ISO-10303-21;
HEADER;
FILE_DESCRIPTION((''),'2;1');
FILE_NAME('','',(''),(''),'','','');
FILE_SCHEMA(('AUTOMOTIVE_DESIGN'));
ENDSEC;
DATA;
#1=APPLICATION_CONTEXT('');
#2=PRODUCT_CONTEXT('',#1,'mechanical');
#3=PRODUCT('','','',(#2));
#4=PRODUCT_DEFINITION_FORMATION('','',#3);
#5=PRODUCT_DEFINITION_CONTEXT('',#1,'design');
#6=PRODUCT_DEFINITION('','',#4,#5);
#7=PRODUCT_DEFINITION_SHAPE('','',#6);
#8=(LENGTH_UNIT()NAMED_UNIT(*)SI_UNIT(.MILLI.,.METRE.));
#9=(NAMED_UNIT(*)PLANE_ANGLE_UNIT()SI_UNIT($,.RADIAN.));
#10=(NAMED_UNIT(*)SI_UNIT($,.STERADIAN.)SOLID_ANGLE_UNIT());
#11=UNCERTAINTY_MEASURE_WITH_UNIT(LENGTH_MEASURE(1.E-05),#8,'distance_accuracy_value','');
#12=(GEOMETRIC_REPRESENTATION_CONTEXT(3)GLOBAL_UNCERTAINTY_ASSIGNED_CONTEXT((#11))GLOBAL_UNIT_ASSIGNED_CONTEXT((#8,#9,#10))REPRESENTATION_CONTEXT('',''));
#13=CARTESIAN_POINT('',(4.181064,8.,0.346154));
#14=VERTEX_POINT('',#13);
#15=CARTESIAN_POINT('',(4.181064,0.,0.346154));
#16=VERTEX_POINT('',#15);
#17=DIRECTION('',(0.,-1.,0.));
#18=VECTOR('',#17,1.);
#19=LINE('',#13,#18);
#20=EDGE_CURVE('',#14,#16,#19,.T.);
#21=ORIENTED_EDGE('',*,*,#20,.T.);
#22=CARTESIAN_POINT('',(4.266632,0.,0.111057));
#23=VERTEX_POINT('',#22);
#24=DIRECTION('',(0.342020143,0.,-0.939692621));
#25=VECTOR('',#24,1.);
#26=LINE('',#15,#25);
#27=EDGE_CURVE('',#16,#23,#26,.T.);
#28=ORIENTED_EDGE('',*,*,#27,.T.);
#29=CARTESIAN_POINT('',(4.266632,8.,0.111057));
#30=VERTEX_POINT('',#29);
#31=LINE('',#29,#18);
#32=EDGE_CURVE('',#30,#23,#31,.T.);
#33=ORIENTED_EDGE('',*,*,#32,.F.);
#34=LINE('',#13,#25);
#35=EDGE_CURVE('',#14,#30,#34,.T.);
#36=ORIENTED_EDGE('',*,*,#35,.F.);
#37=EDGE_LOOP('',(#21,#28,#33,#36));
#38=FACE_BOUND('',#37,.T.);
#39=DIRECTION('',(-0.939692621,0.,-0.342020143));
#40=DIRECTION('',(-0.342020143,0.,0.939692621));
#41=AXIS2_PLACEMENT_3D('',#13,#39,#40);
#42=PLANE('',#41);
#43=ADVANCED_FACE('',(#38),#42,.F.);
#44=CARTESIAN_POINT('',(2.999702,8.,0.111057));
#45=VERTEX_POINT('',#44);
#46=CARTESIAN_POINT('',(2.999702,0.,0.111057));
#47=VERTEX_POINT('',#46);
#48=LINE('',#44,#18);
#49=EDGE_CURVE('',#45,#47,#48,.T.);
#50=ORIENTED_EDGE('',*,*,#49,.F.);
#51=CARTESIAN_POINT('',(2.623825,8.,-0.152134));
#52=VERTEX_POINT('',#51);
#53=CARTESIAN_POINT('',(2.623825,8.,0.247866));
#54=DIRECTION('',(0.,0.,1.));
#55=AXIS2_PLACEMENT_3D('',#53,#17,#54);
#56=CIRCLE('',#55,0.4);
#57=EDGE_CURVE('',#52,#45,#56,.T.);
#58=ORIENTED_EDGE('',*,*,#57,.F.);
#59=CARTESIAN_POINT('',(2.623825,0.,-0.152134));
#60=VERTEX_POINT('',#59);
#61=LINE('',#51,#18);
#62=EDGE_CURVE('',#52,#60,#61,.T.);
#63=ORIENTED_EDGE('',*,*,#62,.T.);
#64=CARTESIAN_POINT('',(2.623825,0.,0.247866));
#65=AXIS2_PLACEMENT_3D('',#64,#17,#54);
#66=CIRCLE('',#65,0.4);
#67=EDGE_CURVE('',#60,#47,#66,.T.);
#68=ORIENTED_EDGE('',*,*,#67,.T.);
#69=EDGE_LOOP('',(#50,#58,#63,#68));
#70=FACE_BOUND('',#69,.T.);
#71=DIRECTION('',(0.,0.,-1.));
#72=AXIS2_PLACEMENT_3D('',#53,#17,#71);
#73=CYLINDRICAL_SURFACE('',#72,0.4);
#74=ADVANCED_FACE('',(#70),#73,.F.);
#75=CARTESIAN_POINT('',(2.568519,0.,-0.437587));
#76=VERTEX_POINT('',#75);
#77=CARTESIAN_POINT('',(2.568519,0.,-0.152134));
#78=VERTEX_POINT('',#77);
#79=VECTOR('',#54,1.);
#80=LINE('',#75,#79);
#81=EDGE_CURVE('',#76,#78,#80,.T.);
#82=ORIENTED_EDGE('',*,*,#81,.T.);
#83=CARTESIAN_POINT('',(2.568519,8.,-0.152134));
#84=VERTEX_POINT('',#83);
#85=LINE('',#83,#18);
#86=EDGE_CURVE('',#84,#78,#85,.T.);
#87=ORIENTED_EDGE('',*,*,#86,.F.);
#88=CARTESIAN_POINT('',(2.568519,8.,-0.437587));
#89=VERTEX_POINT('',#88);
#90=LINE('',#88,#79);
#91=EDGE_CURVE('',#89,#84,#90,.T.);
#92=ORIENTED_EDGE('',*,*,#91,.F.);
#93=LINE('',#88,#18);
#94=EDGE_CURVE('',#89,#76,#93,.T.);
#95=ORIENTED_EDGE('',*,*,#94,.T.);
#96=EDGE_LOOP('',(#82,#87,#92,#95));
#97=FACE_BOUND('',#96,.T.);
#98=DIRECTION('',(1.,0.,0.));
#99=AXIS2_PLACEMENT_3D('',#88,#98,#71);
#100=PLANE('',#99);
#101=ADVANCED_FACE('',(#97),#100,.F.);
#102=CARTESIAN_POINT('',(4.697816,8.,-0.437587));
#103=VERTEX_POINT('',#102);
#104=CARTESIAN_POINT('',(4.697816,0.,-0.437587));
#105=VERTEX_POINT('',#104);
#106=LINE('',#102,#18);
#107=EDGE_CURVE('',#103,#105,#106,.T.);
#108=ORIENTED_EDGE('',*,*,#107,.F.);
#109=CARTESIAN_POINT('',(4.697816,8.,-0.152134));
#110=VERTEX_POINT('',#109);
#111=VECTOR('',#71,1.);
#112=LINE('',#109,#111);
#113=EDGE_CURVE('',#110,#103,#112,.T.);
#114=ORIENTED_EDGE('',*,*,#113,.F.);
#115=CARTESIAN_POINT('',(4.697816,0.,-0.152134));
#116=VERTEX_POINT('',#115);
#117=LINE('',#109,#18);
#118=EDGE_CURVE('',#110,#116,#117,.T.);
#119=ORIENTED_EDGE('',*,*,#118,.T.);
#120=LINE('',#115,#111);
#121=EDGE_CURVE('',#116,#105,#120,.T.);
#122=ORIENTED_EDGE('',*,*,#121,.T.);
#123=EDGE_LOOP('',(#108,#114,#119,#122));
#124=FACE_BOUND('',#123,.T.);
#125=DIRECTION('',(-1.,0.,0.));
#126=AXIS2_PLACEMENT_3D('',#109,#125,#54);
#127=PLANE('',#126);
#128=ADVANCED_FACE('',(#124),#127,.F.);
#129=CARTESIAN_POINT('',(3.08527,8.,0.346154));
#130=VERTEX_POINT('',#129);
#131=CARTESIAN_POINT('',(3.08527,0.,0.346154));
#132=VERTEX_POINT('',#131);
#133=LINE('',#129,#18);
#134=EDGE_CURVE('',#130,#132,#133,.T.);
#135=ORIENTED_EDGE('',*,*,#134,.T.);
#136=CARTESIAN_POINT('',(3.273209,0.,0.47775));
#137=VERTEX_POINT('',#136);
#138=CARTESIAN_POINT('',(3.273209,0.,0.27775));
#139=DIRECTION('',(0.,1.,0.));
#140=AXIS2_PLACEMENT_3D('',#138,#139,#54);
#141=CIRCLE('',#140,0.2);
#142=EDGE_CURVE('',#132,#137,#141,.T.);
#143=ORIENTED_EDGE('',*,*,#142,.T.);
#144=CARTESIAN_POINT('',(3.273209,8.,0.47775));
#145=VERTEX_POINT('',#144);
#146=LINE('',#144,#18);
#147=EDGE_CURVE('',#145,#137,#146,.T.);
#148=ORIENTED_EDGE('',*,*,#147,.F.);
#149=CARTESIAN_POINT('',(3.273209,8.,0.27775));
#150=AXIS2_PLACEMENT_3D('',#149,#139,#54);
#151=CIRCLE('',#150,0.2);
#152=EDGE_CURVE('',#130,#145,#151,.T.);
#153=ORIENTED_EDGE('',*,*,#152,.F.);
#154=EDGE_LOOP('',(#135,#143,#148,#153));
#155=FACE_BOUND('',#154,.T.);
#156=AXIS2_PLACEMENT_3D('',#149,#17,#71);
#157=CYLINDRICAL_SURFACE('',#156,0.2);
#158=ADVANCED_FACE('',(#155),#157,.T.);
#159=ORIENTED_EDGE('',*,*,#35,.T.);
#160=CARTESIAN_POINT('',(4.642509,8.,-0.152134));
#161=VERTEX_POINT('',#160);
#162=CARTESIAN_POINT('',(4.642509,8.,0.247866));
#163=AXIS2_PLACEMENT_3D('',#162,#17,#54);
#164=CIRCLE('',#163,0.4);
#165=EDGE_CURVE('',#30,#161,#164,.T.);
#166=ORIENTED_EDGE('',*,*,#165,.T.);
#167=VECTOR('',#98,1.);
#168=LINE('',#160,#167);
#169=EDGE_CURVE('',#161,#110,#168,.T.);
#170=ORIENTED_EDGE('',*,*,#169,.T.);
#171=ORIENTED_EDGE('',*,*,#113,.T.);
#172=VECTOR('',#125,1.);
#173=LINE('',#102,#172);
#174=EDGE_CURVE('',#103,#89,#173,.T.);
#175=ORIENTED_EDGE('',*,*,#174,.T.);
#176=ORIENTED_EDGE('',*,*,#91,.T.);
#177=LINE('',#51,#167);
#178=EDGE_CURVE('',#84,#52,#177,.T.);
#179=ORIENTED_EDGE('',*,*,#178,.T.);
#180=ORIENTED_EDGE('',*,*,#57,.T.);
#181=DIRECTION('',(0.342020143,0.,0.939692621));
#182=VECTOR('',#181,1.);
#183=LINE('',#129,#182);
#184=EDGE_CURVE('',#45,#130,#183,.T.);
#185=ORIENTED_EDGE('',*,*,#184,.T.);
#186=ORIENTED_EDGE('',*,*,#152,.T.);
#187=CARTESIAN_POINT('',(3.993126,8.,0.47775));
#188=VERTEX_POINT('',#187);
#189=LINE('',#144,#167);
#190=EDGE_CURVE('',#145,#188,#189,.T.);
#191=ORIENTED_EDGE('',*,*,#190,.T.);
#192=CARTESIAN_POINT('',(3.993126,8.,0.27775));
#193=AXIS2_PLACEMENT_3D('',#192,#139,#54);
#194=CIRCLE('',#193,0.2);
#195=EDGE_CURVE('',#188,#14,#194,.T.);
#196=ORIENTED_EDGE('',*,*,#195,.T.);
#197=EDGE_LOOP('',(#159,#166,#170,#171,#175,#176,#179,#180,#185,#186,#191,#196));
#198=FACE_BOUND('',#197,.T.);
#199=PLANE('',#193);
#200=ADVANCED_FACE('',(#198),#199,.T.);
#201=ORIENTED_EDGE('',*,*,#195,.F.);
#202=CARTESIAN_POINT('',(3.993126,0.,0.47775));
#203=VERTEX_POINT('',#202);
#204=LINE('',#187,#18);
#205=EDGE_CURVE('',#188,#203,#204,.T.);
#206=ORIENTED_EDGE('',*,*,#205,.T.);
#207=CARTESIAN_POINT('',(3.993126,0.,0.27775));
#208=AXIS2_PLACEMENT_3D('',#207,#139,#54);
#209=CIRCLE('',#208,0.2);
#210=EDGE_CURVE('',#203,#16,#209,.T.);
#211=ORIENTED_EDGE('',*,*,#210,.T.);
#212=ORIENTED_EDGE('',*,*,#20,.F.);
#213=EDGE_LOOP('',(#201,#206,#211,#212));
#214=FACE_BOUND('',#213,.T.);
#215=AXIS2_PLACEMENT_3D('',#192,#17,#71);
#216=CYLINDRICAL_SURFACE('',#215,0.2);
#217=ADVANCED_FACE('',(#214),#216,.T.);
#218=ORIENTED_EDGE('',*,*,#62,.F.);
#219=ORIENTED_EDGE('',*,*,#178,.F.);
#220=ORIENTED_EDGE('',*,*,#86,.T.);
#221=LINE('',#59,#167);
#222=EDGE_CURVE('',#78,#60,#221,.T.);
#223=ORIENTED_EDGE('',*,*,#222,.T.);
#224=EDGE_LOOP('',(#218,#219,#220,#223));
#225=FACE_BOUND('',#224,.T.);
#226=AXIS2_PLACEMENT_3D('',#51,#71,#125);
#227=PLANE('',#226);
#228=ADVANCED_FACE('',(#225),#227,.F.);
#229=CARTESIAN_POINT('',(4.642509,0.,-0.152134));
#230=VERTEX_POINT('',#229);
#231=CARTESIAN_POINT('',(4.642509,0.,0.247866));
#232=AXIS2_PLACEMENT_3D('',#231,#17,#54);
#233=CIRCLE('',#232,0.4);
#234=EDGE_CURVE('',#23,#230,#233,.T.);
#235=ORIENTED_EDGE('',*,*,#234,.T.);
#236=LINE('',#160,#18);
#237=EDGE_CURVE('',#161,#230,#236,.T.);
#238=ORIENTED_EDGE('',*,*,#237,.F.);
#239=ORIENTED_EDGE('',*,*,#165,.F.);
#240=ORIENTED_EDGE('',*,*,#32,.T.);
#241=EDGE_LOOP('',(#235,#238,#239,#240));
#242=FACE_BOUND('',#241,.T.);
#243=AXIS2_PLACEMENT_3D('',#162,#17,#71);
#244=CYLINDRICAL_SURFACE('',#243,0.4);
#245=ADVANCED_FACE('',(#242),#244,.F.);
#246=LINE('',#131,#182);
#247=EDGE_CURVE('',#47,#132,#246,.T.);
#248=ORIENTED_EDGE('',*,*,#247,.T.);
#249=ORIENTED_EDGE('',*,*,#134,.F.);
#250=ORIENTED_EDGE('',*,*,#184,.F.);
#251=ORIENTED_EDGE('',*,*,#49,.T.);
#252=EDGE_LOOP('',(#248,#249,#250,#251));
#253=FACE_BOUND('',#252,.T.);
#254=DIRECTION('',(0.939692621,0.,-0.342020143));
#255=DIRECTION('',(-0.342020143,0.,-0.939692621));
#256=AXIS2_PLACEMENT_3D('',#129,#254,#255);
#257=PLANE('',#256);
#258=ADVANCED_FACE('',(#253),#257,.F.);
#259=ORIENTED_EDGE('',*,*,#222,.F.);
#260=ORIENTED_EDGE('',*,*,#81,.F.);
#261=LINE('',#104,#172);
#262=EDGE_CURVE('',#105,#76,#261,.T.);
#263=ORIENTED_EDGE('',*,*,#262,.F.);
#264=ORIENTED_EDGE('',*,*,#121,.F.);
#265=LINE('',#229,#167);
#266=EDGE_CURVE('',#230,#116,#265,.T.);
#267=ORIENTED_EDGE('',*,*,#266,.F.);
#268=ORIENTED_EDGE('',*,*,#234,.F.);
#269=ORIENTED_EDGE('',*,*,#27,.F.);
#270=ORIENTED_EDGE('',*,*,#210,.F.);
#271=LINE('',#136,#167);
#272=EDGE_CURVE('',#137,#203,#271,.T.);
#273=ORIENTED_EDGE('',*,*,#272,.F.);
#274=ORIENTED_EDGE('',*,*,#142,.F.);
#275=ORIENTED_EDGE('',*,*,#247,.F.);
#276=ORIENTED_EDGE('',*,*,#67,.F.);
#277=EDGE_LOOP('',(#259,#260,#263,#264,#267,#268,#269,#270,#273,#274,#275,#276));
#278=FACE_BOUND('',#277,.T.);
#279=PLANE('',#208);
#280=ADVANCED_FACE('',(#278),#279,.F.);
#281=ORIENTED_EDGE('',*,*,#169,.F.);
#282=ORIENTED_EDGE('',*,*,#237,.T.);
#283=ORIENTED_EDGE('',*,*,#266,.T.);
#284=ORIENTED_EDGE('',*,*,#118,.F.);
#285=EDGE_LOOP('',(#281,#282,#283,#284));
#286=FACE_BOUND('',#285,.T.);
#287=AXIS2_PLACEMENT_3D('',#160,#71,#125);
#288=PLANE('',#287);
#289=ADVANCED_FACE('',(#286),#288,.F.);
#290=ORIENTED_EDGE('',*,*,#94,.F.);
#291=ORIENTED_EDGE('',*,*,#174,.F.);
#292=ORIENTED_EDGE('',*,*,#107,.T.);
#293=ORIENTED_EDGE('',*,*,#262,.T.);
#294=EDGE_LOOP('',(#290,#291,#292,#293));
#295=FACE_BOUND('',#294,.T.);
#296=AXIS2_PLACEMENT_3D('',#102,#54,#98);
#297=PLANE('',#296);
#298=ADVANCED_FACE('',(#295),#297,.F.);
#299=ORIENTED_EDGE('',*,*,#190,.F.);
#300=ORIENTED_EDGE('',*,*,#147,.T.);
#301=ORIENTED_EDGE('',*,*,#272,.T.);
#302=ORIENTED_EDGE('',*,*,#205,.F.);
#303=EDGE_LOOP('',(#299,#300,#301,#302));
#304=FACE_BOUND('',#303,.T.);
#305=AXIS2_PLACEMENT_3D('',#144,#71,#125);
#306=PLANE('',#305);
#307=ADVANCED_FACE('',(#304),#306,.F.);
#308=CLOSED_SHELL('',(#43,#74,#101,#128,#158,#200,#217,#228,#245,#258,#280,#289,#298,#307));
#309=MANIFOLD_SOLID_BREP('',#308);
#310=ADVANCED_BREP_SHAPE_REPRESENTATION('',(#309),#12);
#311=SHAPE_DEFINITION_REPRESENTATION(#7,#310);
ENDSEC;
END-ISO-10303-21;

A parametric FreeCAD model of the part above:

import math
import FreeCAD as App
import Part
import Sketcher
from FreeCAD import Vector
Q = App.Units.Quantity

doc = App.newDocument("Part")
body = doc.addObject("PartDesign::Body", "Body")

# Sketch on XZ plane
sketch1 = body.newObject("Sketcher::SketchObject", "Sketch")
sketch1.AttachmentSupport = (doc.getObject("XZ_Plane"), [""])
sketch1.MapMode = "FlatFace"
sketch1.addGeometry([
    Part.LineSegment(Vector(4.18, 0.35, 0), Vector(4.27, 0.11, 0)),  # 0
    Part.ArcOfCircle(Part.Circle(Vector(4.64, 0.25, 0), Vector(0, 0, 1), 0.4), math.radians(-160), math.radians(-90)),  # 1
    Part.LineSegment(Vector(4.64, -0.15, 0), Vector(4.7, -0.15, 0)),  # 2
    Part.LineSegment(Vector(4.7, -0.15, 0), Vector(4.7, -0.44, 0)),  # 3
    Part.LineSegment(Vector(4.7, -0.44, 0), Vector(2.57, -0.44, 0)),  # 4
    Part.LineSegment(Vector(2.57, -0.44, 0), Vector(2.57, -0.15, 0)),  # 5
    Part.LineSegment(Vector(2.57, -0.15, 0), Vector(2.62, -0.15, 0)),  # 6
    Part.ArcOfCircle(Part.Circle(Vector(2.62, 0.25, 0), Vector(0, 0, 1), 0.4), math.radians(-90), math.radians(-20)),  # 7
    Part.LineSegment(Vector(3, 0.11, 0), Vector(3.09, 0.35, 0)),  # 8
    Part.ArcOfCircle(Part.Circle(Vector(3.27, 0.28, 0), Vector(0, 0, 1), 0.2), math.radians(90), math.radians(160)),  # 9
    Part.LineSegment(Vector(3.27, 0.48, 0), Vector(3.99, 0.48, 0)),  # 10
    Part.ArcOfCircle(Part.Circle(Vector(3.99, 0.28, 0), Vector(0, 0, 1), 0.2), math.radians(20), math.radians(90)),  # 11
], False)
sketch1.addConstraint([
    Sketcher.Constraint("Tangent", 0, 2, 1, 1),
    Sketcher.Constraint("Tangent", 1, 2, 2, 1),
    Sketcher.Constraint("Coincident", 2, 2, 3, 1),
    Sketcher.Constraint("Coincident", 3, 2, 4, 1),
    Sketcher.Constraint("Coincident", 4, 2, 5, 1),
    Sketcher.Constraint("Coincident", 5, 2, 6, 1),
    Sketcher.Constraint("Tangent", 6, 2, 7, 1),
    Sketcher.Constraint("Tangent", 7, 2, 8, 1),
    Sketcher.Constraint("Tangent", 8, 2, 9, 2),
    Sketcher.Constraint("Tangent", 9, 1, 10, 1),
    Sketcher.Constraint("Tangent", 10, 2, 11, 2),
    Sketcher.Constraint("Tangent", 11, 1, 0, 1),
    Sketcher.Constraint("Horizontal", 2),
    Sketcher.Constraint("Vertical", 3),
    Sketcher.Constraint("Horizontal", 4),
    Sketcher.Constraint("Vertical", 5),
    Sketcher.Constraint("Horizontal", 6),
    Sketcher.Constraint("Horizontal", 10),
    Sketcher.Constraint("Equal", 1, 7),
    Sketcher.Constraint("Equal", 9, 11),
    Sketcher.Constraint("Horizontal", 1, 3, 7, 3),
    Sketcher.Constraint("Horizontal", 0, 2, 7, 2),
    Sketcher.Constraint("Equal", 2, 6),
    Sketcher.Constraint("Radius", 1, 0.4),
    Sketcher.Constraint("Radius", 9, 0.2),
    Sketcher.Constraint("Angle", 0, Q("-70 deg")),
    Sketcher.Constraint("DistanceX", 9, 3, 1, 3, 1.369301),
    Sketcher.Constraint("DistanceX", 2, 1, 2, 2, 0.055306),
    Sketcher.Constraint("DistanceX", 4, 2, 4, 1, 2.129297),
    Sketcher.Constraint("DistanceY", 3, 2, 3, 1, 0.285453),
    Sketcher.Constraint("DistanceX", -1, 1, 1, 3, 4.642509),
    Sketcher.Constraint("DistanceY", -1, 1, 9, 3, 0.27775),
])
pad1 = body.newObject("PartDesign::Pad", "Pad")
pad1.Profile = sketch1
pad1.Length = 8
pad1.Reversed = True

doc.recompute()
